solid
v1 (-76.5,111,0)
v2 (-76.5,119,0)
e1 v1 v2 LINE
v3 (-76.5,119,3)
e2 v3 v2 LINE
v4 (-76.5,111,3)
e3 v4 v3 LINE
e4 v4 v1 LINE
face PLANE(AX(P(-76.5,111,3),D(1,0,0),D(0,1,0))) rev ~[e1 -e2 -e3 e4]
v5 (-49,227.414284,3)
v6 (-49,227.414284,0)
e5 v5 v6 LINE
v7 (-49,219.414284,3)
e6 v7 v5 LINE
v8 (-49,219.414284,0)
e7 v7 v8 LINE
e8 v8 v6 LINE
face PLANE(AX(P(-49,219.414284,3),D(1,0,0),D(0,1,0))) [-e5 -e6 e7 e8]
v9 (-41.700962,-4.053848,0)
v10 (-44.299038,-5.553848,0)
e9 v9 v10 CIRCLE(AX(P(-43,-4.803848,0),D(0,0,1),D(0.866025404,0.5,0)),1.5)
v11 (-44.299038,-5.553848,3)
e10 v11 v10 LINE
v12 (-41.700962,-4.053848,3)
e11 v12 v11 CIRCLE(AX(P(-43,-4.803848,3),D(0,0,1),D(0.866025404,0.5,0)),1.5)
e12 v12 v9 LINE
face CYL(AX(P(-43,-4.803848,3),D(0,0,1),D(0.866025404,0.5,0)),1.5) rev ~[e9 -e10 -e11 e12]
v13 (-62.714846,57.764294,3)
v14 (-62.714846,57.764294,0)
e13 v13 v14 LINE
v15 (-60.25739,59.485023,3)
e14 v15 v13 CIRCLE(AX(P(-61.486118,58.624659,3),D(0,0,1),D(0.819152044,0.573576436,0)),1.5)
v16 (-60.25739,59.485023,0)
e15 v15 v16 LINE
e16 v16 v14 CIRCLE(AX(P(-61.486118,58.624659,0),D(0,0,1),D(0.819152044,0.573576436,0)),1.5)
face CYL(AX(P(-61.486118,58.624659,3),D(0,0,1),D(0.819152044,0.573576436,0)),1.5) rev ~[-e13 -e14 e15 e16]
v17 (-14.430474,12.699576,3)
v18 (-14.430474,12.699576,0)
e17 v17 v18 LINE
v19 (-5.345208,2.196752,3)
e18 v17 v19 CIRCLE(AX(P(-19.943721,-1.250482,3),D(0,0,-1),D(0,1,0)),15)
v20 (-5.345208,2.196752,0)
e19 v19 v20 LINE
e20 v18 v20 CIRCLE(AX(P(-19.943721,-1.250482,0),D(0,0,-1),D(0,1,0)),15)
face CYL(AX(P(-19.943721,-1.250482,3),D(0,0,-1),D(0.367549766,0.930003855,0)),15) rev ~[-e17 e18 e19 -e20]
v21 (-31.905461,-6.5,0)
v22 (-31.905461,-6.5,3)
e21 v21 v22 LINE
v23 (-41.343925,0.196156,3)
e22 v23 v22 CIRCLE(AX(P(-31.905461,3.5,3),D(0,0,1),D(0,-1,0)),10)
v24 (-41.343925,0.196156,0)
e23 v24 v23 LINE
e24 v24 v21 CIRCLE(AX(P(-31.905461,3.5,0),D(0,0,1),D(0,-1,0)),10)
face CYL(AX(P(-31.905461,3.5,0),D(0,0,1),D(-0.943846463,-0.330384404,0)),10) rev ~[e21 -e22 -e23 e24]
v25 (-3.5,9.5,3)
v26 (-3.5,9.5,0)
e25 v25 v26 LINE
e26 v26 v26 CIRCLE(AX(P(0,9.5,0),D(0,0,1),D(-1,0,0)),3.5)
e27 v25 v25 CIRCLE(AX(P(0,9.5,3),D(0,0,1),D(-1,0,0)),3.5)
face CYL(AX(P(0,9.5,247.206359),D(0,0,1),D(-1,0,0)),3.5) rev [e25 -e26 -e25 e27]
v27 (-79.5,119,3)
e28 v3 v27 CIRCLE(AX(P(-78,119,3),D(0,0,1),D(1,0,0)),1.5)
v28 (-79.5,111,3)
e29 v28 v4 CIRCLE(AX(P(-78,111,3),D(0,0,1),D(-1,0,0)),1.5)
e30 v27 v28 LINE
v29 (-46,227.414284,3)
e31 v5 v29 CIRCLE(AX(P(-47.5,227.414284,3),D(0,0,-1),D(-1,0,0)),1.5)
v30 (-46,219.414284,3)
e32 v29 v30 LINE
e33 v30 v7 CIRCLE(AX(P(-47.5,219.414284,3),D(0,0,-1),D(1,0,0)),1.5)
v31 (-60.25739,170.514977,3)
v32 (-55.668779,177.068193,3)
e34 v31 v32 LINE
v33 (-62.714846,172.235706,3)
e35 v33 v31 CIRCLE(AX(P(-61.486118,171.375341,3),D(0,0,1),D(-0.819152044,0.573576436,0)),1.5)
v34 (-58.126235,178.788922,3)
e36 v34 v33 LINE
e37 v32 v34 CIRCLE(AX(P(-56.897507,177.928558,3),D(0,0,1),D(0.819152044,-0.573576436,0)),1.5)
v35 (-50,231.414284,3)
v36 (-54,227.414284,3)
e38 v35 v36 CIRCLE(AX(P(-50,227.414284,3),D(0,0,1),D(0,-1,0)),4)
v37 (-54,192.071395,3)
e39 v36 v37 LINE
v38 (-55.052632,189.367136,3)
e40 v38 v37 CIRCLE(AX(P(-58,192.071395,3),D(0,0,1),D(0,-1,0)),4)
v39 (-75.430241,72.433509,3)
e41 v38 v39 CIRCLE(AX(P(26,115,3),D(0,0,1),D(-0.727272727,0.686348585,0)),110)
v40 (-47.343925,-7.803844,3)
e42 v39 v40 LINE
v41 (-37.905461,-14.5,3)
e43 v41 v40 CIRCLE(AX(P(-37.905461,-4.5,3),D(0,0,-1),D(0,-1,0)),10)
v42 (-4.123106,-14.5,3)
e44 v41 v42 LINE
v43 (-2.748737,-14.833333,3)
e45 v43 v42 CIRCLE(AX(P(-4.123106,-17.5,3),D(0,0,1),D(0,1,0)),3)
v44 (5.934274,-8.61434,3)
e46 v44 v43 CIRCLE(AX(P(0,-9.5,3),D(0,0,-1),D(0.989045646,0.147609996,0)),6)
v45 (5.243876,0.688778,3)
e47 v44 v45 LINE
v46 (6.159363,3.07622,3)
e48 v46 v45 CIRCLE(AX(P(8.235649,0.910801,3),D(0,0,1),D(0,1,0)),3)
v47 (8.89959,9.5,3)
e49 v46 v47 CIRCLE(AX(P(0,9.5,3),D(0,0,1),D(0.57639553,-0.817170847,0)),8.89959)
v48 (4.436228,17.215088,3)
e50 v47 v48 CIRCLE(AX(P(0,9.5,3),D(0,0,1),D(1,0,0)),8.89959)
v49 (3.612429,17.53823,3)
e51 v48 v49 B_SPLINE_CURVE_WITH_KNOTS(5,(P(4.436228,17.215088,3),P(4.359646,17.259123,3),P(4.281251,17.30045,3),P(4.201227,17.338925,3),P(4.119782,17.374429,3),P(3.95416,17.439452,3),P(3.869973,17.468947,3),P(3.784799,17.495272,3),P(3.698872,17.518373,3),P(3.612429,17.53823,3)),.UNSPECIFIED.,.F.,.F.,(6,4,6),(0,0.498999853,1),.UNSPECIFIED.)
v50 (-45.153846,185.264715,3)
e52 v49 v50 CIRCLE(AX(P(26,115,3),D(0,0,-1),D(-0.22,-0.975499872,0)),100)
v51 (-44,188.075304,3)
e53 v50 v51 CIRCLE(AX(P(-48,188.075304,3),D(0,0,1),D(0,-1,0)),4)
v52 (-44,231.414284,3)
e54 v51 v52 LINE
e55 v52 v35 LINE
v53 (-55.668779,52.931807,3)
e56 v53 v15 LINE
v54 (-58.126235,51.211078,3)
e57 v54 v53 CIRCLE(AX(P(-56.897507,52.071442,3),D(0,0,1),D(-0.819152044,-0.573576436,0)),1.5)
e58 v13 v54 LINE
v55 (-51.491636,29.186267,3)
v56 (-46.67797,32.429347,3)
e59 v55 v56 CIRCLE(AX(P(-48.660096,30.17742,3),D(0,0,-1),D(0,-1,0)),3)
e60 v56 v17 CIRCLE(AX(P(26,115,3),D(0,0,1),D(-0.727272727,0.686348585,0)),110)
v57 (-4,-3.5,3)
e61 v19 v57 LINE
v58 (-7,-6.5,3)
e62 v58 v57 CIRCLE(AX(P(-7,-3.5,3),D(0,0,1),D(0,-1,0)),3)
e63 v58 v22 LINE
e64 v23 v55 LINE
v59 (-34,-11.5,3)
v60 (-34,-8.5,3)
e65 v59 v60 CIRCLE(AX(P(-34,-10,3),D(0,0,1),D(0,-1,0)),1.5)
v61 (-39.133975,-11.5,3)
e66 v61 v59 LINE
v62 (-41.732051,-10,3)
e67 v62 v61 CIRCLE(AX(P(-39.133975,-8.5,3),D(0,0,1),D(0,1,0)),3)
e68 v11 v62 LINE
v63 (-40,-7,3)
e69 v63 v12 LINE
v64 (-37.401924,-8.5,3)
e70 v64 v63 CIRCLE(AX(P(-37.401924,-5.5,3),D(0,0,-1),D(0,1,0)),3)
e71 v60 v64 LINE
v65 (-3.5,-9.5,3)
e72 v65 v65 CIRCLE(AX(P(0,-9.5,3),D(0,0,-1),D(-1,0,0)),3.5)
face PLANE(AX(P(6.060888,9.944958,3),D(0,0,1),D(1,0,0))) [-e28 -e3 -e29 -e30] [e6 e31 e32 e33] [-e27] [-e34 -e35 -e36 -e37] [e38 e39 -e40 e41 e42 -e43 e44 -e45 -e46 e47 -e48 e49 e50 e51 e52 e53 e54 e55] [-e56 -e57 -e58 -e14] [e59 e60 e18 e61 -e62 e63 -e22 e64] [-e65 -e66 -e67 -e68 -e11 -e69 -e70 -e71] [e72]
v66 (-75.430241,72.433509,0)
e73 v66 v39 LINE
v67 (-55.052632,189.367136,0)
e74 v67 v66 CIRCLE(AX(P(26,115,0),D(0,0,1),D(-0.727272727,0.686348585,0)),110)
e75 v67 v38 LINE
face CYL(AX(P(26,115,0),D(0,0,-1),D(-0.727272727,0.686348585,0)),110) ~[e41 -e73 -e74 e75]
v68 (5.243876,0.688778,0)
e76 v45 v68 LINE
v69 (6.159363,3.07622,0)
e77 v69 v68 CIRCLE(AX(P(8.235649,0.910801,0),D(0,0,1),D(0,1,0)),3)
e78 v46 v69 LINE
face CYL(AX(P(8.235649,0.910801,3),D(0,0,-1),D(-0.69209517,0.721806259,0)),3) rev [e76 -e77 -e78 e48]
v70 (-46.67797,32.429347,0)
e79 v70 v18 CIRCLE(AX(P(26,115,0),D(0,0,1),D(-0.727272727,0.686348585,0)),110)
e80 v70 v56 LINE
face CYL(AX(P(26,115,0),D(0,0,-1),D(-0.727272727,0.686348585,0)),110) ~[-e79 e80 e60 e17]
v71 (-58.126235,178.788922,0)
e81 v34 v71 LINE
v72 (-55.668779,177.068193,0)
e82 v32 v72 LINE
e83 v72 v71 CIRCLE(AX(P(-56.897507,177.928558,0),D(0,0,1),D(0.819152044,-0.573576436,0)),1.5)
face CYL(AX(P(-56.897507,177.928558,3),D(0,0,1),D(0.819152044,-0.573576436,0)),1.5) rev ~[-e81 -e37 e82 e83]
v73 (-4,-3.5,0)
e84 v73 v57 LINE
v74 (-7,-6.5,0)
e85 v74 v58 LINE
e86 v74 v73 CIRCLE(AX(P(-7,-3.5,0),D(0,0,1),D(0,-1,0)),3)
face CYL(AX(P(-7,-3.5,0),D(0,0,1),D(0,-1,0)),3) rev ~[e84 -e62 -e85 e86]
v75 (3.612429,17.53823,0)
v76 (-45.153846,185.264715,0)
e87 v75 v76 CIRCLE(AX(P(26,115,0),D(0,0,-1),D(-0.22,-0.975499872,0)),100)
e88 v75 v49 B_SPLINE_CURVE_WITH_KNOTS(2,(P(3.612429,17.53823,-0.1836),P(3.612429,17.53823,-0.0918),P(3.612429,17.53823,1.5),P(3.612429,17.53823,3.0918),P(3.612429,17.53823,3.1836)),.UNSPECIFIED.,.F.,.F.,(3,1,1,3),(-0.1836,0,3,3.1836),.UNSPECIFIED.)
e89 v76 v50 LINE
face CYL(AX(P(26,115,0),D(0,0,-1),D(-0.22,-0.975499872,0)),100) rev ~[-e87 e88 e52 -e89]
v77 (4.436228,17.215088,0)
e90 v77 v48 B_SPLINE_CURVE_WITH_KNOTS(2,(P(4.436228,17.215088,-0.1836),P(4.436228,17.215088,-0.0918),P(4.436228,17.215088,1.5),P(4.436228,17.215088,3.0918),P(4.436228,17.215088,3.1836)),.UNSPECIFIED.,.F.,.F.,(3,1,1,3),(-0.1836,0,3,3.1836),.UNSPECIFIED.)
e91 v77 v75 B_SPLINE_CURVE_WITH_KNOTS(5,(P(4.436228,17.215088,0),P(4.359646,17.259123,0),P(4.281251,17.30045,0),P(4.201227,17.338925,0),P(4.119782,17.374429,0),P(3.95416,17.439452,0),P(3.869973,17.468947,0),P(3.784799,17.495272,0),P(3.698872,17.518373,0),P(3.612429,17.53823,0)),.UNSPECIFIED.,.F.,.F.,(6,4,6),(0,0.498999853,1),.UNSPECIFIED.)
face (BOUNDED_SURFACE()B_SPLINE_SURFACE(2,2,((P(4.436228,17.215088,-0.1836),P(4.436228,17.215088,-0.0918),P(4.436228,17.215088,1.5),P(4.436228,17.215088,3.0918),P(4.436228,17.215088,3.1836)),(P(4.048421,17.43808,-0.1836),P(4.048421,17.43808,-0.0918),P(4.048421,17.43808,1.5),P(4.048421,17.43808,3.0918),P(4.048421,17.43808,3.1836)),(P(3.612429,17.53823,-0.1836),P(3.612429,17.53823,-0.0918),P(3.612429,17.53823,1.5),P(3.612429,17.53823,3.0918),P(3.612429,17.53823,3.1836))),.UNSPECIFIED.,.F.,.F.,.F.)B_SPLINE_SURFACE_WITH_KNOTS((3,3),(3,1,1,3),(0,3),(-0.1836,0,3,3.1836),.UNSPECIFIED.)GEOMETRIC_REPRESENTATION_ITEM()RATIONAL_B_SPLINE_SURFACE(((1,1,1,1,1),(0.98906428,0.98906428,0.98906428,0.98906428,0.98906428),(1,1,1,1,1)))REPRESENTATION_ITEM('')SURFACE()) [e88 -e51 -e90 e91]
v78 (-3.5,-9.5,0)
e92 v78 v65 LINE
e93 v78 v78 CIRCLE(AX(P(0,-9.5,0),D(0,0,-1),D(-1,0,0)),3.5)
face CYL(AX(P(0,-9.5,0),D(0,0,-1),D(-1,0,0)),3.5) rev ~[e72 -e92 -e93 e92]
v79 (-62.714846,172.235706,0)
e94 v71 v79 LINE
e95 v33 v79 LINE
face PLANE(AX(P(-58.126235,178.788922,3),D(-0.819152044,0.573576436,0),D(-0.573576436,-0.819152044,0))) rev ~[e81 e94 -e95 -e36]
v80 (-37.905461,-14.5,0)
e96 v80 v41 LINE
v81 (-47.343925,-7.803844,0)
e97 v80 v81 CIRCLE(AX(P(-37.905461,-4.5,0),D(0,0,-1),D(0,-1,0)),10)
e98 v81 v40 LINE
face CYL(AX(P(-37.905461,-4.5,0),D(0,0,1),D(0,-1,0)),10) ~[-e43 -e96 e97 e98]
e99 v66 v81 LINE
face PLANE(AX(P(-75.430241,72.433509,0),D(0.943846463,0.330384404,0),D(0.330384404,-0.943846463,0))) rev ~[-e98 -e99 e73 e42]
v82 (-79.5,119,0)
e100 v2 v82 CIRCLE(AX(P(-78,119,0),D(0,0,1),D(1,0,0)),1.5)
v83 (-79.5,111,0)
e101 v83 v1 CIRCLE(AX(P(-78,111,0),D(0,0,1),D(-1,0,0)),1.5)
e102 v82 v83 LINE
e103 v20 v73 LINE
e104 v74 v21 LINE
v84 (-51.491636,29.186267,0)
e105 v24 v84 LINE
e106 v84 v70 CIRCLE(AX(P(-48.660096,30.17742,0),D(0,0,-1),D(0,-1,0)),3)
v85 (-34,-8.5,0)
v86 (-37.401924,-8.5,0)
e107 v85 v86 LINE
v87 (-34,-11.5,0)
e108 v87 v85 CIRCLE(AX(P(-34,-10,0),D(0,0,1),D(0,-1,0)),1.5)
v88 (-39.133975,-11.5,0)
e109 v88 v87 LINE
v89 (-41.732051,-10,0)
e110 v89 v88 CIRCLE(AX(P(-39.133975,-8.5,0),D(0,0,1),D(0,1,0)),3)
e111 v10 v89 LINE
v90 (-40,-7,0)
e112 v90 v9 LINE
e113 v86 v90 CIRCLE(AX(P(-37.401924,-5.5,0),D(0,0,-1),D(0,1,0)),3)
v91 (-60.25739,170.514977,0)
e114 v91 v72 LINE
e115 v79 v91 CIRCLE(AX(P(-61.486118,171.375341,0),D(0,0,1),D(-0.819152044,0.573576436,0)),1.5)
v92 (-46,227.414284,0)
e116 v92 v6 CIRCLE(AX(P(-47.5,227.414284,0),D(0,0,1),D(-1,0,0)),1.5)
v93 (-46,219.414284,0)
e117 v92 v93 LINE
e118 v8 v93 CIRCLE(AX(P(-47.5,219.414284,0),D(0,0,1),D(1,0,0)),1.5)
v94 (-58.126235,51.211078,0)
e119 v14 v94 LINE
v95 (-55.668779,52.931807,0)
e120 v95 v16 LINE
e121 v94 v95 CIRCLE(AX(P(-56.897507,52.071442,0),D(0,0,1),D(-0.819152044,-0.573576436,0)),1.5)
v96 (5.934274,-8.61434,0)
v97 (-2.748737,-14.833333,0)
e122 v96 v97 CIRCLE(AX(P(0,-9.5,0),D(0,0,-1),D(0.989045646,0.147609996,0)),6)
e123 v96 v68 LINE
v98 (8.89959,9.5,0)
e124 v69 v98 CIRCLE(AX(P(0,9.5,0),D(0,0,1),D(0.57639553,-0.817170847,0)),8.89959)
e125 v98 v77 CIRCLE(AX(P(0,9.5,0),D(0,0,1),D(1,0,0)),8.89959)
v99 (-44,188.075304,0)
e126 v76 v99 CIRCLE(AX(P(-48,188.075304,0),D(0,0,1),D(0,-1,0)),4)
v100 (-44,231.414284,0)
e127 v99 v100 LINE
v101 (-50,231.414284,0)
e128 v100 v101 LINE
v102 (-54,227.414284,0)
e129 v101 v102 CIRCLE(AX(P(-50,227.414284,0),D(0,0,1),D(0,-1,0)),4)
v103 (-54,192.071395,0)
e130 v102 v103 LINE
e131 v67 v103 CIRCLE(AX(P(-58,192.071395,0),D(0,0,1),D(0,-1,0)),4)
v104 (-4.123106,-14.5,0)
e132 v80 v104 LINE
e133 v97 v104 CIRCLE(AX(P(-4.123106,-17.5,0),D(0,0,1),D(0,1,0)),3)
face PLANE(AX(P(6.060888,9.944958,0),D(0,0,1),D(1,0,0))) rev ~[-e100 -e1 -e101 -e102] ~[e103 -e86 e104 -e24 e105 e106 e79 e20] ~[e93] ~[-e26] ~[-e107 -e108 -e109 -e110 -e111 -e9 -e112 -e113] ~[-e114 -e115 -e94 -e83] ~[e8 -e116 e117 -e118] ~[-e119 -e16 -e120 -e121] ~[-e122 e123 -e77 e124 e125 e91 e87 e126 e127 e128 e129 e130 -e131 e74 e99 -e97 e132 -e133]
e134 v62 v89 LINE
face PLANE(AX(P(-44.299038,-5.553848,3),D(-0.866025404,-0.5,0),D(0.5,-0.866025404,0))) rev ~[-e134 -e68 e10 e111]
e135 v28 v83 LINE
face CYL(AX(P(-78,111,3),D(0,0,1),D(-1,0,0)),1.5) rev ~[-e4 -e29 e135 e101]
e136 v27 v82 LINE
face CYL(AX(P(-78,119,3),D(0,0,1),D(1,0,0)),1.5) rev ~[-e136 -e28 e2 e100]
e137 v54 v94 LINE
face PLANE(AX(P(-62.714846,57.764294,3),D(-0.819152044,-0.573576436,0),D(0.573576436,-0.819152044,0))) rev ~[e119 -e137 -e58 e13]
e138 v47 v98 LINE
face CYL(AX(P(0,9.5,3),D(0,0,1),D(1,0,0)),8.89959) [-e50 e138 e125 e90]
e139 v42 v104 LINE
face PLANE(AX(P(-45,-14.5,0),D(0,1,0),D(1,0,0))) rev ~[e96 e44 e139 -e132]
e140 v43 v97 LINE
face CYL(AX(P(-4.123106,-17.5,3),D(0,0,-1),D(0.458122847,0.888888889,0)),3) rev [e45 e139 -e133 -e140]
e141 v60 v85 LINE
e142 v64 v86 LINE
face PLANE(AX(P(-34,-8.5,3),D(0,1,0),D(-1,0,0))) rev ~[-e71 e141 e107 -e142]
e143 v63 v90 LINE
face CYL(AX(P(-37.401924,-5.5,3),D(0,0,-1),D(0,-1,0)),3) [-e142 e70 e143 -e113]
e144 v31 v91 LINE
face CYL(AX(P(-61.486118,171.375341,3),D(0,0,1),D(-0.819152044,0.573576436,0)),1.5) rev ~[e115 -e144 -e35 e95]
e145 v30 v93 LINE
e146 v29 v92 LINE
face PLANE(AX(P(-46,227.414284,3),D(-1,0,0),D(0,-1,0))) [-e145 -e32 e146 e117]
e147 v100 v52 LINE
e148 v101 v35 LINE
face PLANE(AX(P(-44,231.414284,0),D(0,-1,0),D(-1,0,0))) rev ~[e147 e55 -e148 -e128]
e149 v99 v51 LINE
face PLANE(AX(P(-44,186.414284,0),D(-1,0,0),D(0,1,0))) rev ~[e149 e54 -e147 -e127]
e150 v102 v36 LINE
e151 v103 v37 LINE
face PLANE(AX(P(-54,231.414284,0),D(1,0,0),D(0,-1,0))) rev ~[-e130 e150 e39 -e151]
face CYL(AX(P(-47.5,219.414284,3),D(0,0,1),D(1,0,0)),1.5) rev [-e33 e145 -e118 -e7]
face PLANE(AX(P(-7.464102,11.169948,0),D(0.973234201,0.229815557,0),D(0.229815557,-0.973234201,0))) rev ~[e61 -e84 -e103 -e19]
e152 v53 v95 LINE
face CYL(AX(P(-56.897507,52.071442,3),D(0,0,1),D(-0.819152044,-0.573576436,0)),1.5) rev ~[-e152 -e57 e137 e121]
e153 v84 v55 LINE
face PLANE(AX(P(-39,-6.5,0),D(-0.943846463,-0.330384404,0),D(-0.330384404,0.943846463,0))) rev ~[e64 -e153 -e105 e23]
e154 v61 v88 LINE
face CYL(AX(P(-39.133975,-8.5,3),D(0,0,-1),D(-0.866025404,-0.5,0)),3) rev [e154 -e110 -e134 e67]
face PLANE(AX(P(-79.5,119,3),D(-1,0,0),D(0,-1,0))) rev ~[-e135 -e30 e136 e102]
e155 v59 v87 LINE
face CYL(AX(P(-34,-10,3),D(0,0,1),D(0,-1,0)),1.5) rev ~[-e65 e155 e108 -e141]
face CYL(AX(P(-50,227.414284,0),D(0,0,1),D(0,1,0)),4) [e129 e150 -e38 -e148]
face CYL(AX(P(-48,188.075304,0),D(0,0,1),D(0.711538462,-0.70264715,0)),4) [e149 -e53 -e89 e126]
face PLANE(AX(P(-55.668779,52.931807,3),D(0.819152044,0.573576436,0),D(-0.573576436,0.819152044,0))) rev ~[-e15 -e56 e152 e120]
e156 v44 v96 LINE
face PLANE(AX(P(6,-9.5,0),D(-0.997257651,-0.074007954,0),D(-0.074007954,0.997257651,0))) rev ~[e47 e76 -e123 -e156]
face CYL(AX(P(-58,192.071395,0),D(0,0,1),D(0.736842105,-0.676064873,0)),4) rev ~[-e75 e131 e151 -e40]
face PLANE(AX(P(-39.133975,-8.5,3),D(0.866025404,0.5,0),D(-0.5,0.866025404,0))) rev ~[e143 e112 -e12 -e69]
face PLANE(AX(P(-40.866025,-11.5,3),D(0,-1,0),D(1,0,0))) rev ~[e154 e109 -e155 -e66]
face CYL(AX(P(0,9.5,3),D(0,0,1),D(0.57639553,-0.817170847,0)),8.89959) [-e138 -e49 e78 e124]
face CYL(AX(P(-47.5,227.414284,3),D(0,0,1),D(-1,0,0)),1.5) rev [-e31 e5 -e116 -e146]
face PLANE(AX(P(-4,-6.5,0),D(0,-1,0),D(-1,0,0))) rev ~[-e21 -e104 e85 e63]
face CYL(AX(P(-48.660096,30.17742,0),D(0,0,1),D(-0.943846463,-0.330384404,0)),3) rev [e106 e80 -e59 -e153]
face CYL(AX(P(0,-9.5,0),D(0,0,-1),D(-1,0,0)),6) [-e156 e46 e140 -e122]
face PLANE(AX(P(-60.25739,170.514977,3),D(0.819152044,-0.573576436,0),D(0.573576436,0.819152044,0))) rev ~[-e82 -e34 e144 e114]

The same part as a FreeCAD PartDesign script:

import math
import FreeCAD as App
import Part
import Sketcher

V = App.Vector
Q = App.Units.Quantity


def edges_at(feature, points):
    """Names of the edges that pass closest to the given points."""
    edges = feature.Shape.Edges
    near = lambda p: min(range(len(edges)), key=lambda i: edges[i].distToShape(Part.Vertex(*p))[0])
    return sorted({f"Edge{near(p) + 1}" for p in points})


def add_polygon(sketch, points):
    """Adds a closed chain of lines whose ends are joined by coincident constraints."""
    first, n = sketch.GeometryCount, len(points)
    for a, b in zip(points, points[1:] + points[:1]):
        sketch.addGeometry(Part.LineSegment(App.Vector(*a, 0), App.Vector(*b, 0)), False)
    for i in range(n):
        sketch.addConstraint(Sketcher.Constraint("Coincident", first + i, 2, first + (i + 1) % n, 1))

doc = App.newDocument("Part")
body = doc.addObject("PartDesign::Body", "Body")

# Sketch on XY plane
sketch1 = body.newObject("Sketcher::SketchObject", "Sketch")
sketch1.AttachmentSupport = (doc.getObject("XY_Plane"), [""])
sketch1.MapMode = "FlatFace"
sketch1.addGeometry(Part.LineSegment(V(4, -6.5, 0), V(4, 17.5, 0)), False)
sketch1.addGeometry(Part.ArcOfCircle(Part.Circle(V(26, 115, 0), V(0, 0, 1), 100), math.radians(134), math.radians(257)), False)
sketch1.addGeometry(Part.LineSegment(V(-44, 186.4, 0), V(-44, 231.4, 0)), False)
sketch1.addGeometry(Part.LineSegment(V(-44, 231.4, 0), V(-54, 231.4, 0)), False)
sketch1.addGeometry(Part.LineSegment(V(-54, 231.4, 0), V(-54, 190.5, 0)), False)
sketch1.addGeometry(Part.ArcOfCircle(Part.Circle(V(26, 115, 0), V(0, 0, 1), 110), math.radians(137), math.radians(254)), False)
sketch1.addGeometry(Part.LineSegment(V(-4, 9.2, 0), V(-4, -6.5, 0)), False)
sketch1.addGeometry(Part.ArcOfCircle(Part.Circle(V(0, -9.5, 0), V(0, 0, 1), 5), math.radians(143), math.radians(397)), False)
sketch1.addGeometry(Part.LineSegment(V(1.5, -9.5, 0), V(-1.5, -9.5, 0)), False)
sketch1.addGeometry(Part.ArcOfCircle(Part.Circle(V(0, -9.5, 0), V(0, 0, 1), 1.5), math.radians(0), math.radians(180)), False)
sketch1.addGeometry(Part.Circle(V(0, 9.5, 0), V(0, 0, 1), 1.5), False)
sketch1.addConstraint(Sketcher.Constraint("Coincident", 0, 2, 1, 2))
sketch1.addConstraint(Sketcher.Constraint("Coincident", 1, 1, 2, 1))
sketch1.addConstraint(Sketcher.Constraint("Coincident", 2, 2, 3, 1))
sketch1.addConstraint(Sketcher.Constraint("Coincident", 3, 2, 4, 1))
sketch1.addConstraint(Sketcher.Constraint("Coincident", 4, 2, 5, 1))
sketch1.addConstraint(Sketcher.Constraint("Coincident", 5, 2, 6, 1))
sketch1.addConstraint(Sketcher.Constraint("Coincident", 6, 2, 7, 1))
sketch1.addConstraint(Sketcher.Constraint("Coincident", 7, 2, 0, 1))
sketch1.addConstraint(Sketcher.Constraint("Coincident", 8, 1, 9, 1))
sketch1.addConstraint(Sketcher.Constraint("Coincident", 9, 2, 8, 2))
sketch1.addConstraint(Sketcher.Constraint("Vertical", 0))
sketch1.addConstraint(Sketcher.Constraint("Vertical", 2))
sketch1.addConstraint(Sketcher.Constraint("Horizontal", 3))
sketch1.addConstraint(Sketcher.Constraint("Vertical", 4))
sketch1.addConstraint(Sketcher.Constraint("Vertical", 6))
sketch1.addConstraint(Sketcher.Constraint("Horizontal", 8))
sketch1.addConstraint(Sketcher.Constraint("Coincident", 5, 3, 1, 3))
sketch1.addConstraint(Sketcher.Constraint("Coincident", 9, 3, 7, 3))
sketch1.addConstraint(Sketcher.Constraint("Equal", 9, 10))
sketch1.addConstraint(Sketcher.Constraint("Symmetric", 7, 3, 10, 3, -1, 1))
sketch1.addConstraint(Sketcher.Constraint("Symmetric", 6, 2, 7, 2, -2))
sketch1.addConstraint(Sketcher.Constraint("Horizontal", 9, 3, 8, 1))
sketch1.addConstraint(Sketcher.Constraint("Diameter", 10, 3.0))
sketch1.addConstraint(Sketcher.Constraint("Radius", 1, 100.0))
sketch1.addConstraint(Sketcher.Constraint("Radius", 5, 110.0))
sketch1.addConstraint(Sketcher.Constraint("Radius", 7, 5.0))
sketch1.addConstraint(Sketcher.Constraint("DistanceX", 3, 2, 3, 1, 10.0))
sketch1.addConstraint(Sketcher.Constraint("DistanceY", 2, 1, 2, 2, 45.0))
sketch1.addConstraint(Sketcher.Constraint("DistanceX", -1, 1, 1, 3, 26.0))
sketch1.addConstraint(Sketcher.Constraint("DistanceY", -1, 1, 1, 3, 115.0))
sketch1.addConstraint(Sketcher.Constraint("DistanceX", -1, 1, 0, 2, 4.0))
sketch1.addConstraint(Sketcher.Constraint("DistanceX", 1, 1, -1, 1, 44.0))
sketch1.addConstraint(Sketcher.Constraint("DistanceY", 7, 3, 10, 3, 19.0))
pad1 = body.newObject("PartDesign::Pad", "Pad")
pad1.Profile = sketch1
pad1.Length = 3
doc.recompute()

fillet = body.newObject("PartDesign::Fillet", "Fillet")
fillet.Base = (pad1, edges_at(pad1, [(-54, 190.498, 1.5), (-54, 231.414, 1.5), (-44, 186.414, 1.5)]))
fillet.Radius = 4

# Sketch on XY plane
sketch2 = body.newObject("Sketcher::SketchObject", "Sketch001")
sketch2.AttachmentSupport = (doc.getObject("XY_Plane"), [""])
sketch2.MapMode = "FlatFace"
sketch2.addGeometry(Part.LineSegment(V(-45, -14, 0), V(0, -14, 0)), False)
sketch2.addGeometry(Part.ArcOfCircle(Part.Circle(V(0, -10, 0), V(0, 0, 1), 5), math.radians(143), math.radians(270)), False)
sketch2.addGeometry(Part.LineSegment(V(-4, -6, 0), V(-39, -6, 0)), False)
sketch2.addGeometry(Part.LineSegment(V(-39, -6, 0), V(-56, 41, 0)), False)
sketch2.addGeometry(Part.ArcOfCircle(Part.Circle(V(26, 115, 0), V(0, 0, 1), 110), math.radians(-157.23), math.radians(-138.02)), False)
sketch2.addGeometry(Part.LineSegment(V(-75, 72, 0), V(-45, -14, 0)), False)
sketch2.addConstraint(Sketcher.Constraint("Tangent", 0, 2, 1, 2))
sketch2.addConstraint(Sketcher.Constraint("Coincident", 1, 1, 2, 1))
sketch2.addConstraint(Sketcher.Constraint("Coincident", 2, 2, 3, 1))
sketch2.addConstraint(Sketcher.Constraint("Coincident", 3, 2, 4, 2))
sketch2.addConstraint(Sketcher.Constraint("Coincident", 4, 1, 5, 1))
sketch2.addConstraint(Sketcher.Constraint("Coincident", 5, 2, 0, 1))
sketch2.addConstraint(Sketcher.Constraint("Horizontal", 0))
sketch2.addConstraint(Sketcher.Constraint("Horizontal", 2))
sketch2.addConstraint(Sketcher.Constraint("PointOnObject", 1, 3, -2))
sketch2.addConstraint(Sketcher.Constraint("Parallel", 3, 5))
sketch2.addConstraint(Sketcher.Constraint("Radius", 1, 5.0))
sketch2.addConstraint(Sketcher.Constraint("Radius", 4, 110.0))
sketch2.addConstraint(Sketcher.Constraint("DistanceX", 0, 1, 0, 2, 45.0))
sketch2.addConstraint(Sketcher.Constraint("DistanceX", 2, 2, 2, 1, 35.0))
sketch2.addConstraint(Sketcher.Constraint("DistanceX", -1, 1, 4, 3, 26.0))
sketch2.addConstraint(Sketcher.Constraint("DistanceY", -1, 1, 4, 3, 115.0))
sketch2.addConstraint(Sketcher.Constraint("DistanceX", 1, 1, -1, 1, 4.0))
sketch2.addConstraint(Sketcher.Constraint("DistanceY", 1, 3, -1, 1, 9.5))
sketch2.addConstraint(Sketcher.Constraint("Distance", 5, 92.105562))
pad2 = body.newObject("PartDesign::Pad", "Pad001")
pad2.Profile = sketch2
pad2.Length = 3
doc.recompute()

fillet2 = body.newObject("PartDesign::Fillet", "Fillet001")
fillet2.Base = (pad2, edges_at(pad2, [(-55.778, 41.431, 1.5)]))
fillet2.Radius = 3
doc.recompute()

fillet3 = body.newObject("PartDesign::Fillet", "Fillet002")
fillet3.Base = (fillet2, edges_at(fillet2, [(-39, -6.5, 1.5), (-45, -14.5, 1.5)]))
fillet3.Radius = 10

# Sketch on XY plane
sketch3 = body.newObject("Sketcher::SketchObject", "Sketch002")
sketch3.AttachmentSupport = (doc.getObject("XY_Plane"), [""])
sketch3.MapMode = "FlatFace"
sketch3.AttachmentOffset = App.Placement(V(0, 0, 3), App.Rotation())
sketch3.addGeometry(Part.Circle(V(0, -9.5, 0), V(0, 0, 1), 1.5), False)
sketch3.addConstraint(Sketcher.Constraint("PointOnObject", 0, 3, -2))
sketch3.addConstraint(Sketcher.Constraint("Diameter", 0, 3.0))
sketch3.addConstraint(Sketcher.Constraint("DistanceY", 0, 3, -1, 1, 9.5))
pocket1 = body.newObject("PartDesign::Pocket", "Pocket")
pocket1.Profile = sketch3
pocket1.Type = "ThroughAll"
doc.recompute()

fillet4 = body.newObject("PartDesign::Fillet", "Fillet003")
fillet4.Base = (pocket1, edges_at(pocket1, [(4, -6.5, 1.5), (-4, -6.5, 1.5)]))
fillet4.Radius = 3

# Sketch on XY plane
sketch4 = body.newObject("Sketcher::SketchObject", "Sketch003")
sketch4.AttachmentSupport = (doc.getObject("XY_Plane"), [""])
sketch4.MapMode = "FlatFace"
sketch4.AttachmentOffset = App.Placement(V(0, 0, 3), App.Rotation())
sketch4.addGeometry(Part.LineSegment(V(-34, -8.5, 0), V(-39.1, -8.5, 0)), False)
sketch4.addGeometry(Part.LineSegment(V(-39.1, -8.5, 0), V(-41.7, -4.1, 0)), False)
sketch4.addGeometry(Part.ArcOfCircle(Part.Circle(V(-43, -4.8, 0), V(0, 0, 1), 1.5), math.radians(30), math.radians(210)), False)
sketch4.addGeometry(Part.LineSegment(V(-44.3, -5.6, 0), V(-40.9, -11.5, 0)), False)
sketch4.addGeometry(Part.LineSegment(V(-40.9, -11.5, 0), V(-34, -11.5, 0)), False)
sketch4.addGeometry(Part.ArcOfCircle(Part.Circle(V(-34, -10, 0), V(0, 0, 1), 1.5), math.radians(-90), math.radians(90)), False)
sketch4.addConstraint(Sketcher.Constraint("Coincident", 0, 2, 1, 1))
sketch4.addConstraint(Sketcher.Constraint("Tangent", 1, 2, 2, 1))
sketch4.addConstraint(Sketcher.Constraint("Tangent", 2, 2, 3, 1))
sketch4.addConstraint(Sketcher.Constraint("Coincident", 3, 2, 4, 1))
sketch4.addConstraint(Sketcher.Constraint("Tangent", 4, 2, 5, 1))
sketch4.addConstraint(Sketcher.Constraint("Tangent", 5, 2, 0, 1))
sketch4.addConstraint(Sketcher.Constraint("Horizontal", 0))
sketch4.addConstraint(Sketcher.Constraint("Horizontal", 4))
sketch4.addConstraint(Sketcher.Constraint("Equal", 2, 5))
sketch4.addConstraint(Sketcher.Constraint("Parallel", 1, 3))
sketch4.addConstraint(Sketcher.Constraint("Radius", 2, 1.5))
sketch4.addConstraint(Sketcher.Constraint("Angle", 1, Q("120 deg")))
sketch4.addConstraint(Sketcher.Constraint("DistanceX", 2, 3, -1, 1, 43.0))
sketch4.addConstraint(Sketcher.Constraint("DistanceX", 5, 3, -1, 1, 34.0))
sketch4.addConstraint(Sketcher.Constraint("DistanceY", 5, 3, -1, 1, 10.0))
sketch4.addConstraint(Sketcher.Constraint("DistanceX", 0, 2, 0, 1, 5.133975))
pocket2 = body.newObject("PartDesign::Pocket", "Pocket001")
pocket2.Profile = sketch4
pocket2.Length = 9.5
doc.recompute()

fillet5 = body.newObject("PartDesign::Fillet", "Fillet004")
fillet5.Base = (pocket2, edges_at(pocket2, [(-40.866, -11.5, 1.5), (-39.134, -8.5, 1.5)]))
fillet5.Radius = 3

# Sketch on XY plane
sketch5 = body.newObject("Sketcher::SketchObject", "Sketch004")
sketch5.AttachmentSupport = (doc.getObject("XY_Plane"), [""])
sketch5.MapMode = "FlatFace"
sketch5.AttachmentOffset = App.Placement(V(0, 0, 3), App.Rotation())
sketch5.addGeometry(Part.LineSegment(V(-58.1, 178.8, 0), V(-62.7, 172.2, 0)), False)
sketch5.addGeometry(Part.ArcOfCircle(Part.Circle(V(-61.5, 171.4, 0), V(0, 0, 1), 1.5), math.radians(145), math.radians(325)), False)
sketch5.addGeometry(Part.LineSegment(V(-60.3, 170.5, 0), V(-55.7, 177.1, 0)), False)
sketch5.addGeometry(Part.ArcOfCircle(Part.Circle(V(-56.9, 177.9, 0), V(0, 0, 1), 1.5), math.radians(-35), math.radians(145)), False)
sketch5.addGeometry(Part.LineSegment(V(-79.5, 119, 0), V(-79.5, 111, 0)), False)
sketch5.addGeometry(Part.ArcOfCircle(Part.Circle(V(-78, 111, 0), V(0, 0, 1), 1.5), math.radians(180), math.radians(360)), False)
sketch5.addGeometry(Part.LineSegment(V(-76.5, 111, 0), V(-76.5, 119, 0)), False)
sketch5.addGeometry(Part.ArcOfCircle(Part.Circle(V(-78, 119, 0), V(0, 0, 1), 1.5), math.radians(0), math.radians(180)), False)
sketch5.addGeometry(Part.LineSegment(V(-62.7, 57.8, 0), V(-58.1, 51.2, 0)), False)
sketch5.addGeometry(Part.ArcOfCircle(Part.Circle(V(-56.9, 52.1, 0), V(0, 0, 1), 1.5), math.radians(-145), math.radians(35)), False)
sketch5.addGeometry(Part.LineSegment(V(-55.7, 52.9, 0), V(-60.3, 59.5, 0)), False)
sketch5.addGeometry(Part.ArcOfCircle(Part.Circle(V(-61.5, 58.6, 0), V(0, 0, 1), 1.5), math.radians(35), math.radians(215)), False)
sketch5.addConstraint(Sketcher.Constraint("Tangent", 0, 2, 1, 1))
sketch5.addConstraint(Sketcher.Constraint("Tangent", 1, 2, 2, 1))
sketch5.addConstraint(Sketcher.Constraint("Tangent", 2, 2, 3, 1))
sketch5.addConstraint(Sketcher.Constraint("Tangent", 3, 2, 0, 1))
sketch5.addConstraint(Sketcher.Constraint("Tangent", 4, 2, 5, 1))
sketch5.addConstraint(Sketcher.Constraint("Tangent", 5, 2, 6, 1))
sketch5.addConstraint(Sketcher.Constraint("Tangent", 6, 2, 7, 1))
sketch5.addConstraint(Sketcher.Constraint("Tangent", 7, 2, 4, 1))
sketch5.addConstraint(Sketcher.Constraint("Tangent", 8, 2, 9, 1))
sketch5.addConstraint(Sketcher.Constraint("Tangent", 9, 2, 10, 1))
sketch5.addConstraint(Sketcher.Constraint("Tangent", 10, 2, 11, 1))
sketch5.addConstraint(Sketcher.Constraint("Tangent", 11, 2, 8, 1))
sketch5.addConstraint(Sketcher.Constraint("Vertical", 4))
sketch5.addConstraint(Sketcher.Constraint("Vertical", 6))
sketch5.addConstraint(Sketcher.Constraint("Equal", 1, 3))
sketch5.addConstraint(Sketcher.Constraint("Equal", 3, 5))
sketch5.addConstraint(Sketcher.Constraint("Equal", 7, 9))
sketch5.addConstraint(Sketcher.Constraint("Equal", 9, 11))
sketch5.addConstraint(Sketcher.Constraint("Vertical", 3, 3, 9, 3))
sketch5.addConstraint(Sketcher.Constraint("Vertical", 1, 3, 11, 3))
sketch5.addConstraint(Sketcher.Constraint("Vertical", 3, 2, 8, 2))
sketch5.addConstraint(Sketcher.Constraint("Radius", 1, 1.5))
sketch5.addConstraint(Sketcher.Constraint("DistanceY", 4, 2, 4, 1, 8.0))
sketch5.addConstraint(Sketcher.Constraint("Angle", 0, Q("-125 deg")))
sketch5.addConstraint(Sketcher.Constraint("Distance", 0, 8.0))
sketch5.addConstraint(Sketcher.Constraint("DistanceX", 5, 3, -1, 1, 78.0))
sketch5.addConstraint(Sketcher.Constraint("DistanceY", -1, 1, 5, 3, 111.0))
sketch5.addConstraint(Sketcher.Constraint("DistanceY", 9, 3, 1, 3, 119.303899))
sketch5.addConstraint(Sketcher.Constraint("DistanceX", 1, 3, -1, 1, 61.486118))
sketch5.addConstraint(Sketcher.Constraint("DistanceY", -1, 1, 1, 3, 171.375341))
pocket3 = body.newObject("PartDesign::Pocket", "Pocket002")
pocket3.Profile = sketch5
pocket3.Length = 9.5

# Sketch on XY plane
sketch6 = body.newObject("Sketcher::SketchObject", "Sketch005")
sketch6.AttachmentSupport = (doc.getObject("XY_Plane"), [""])
sketch6.MapMode = "FlatFace"
sketch6.AttachmentOffset = App.Placement(V(0, 0, 3), App.Rotation())
sketch6.addGeometry(Part.LineSegment(V(-49, 227.4, 0), V(-49, 219.4, 0)), False)
sketch6.addGeometry(Part.ArcOfCircle(Part.Circle(V(-47.5, 219.4, 0), V(0, 0, 1), 1.5), math.radians(180), math.radians(360)), False)
sketch6.addGeometry(Part.LineSegment(V(-46, 219.4, 0), V(-46, 227.4, 0)), False)
sketch6.addGeometry(Part.ArcOfCircle(Part.Circle(V(-47.5, 227.4, 0), V(0, 0, 1), 1.5), math.radians(0), math.radians(180)), False)
sketch6.addConstraint(Sketcher.Constraint("Tangent", 0, 2, 1, 1))
sketch6.addConstraint(Sketcher.Constraint("Tangent", 1, 2, 2, 1))
sketch6.addConstraint(Sketcher.Constraint("Tangent", 2, 2, 3, 1))
sketch6.addConstraint(Sketcher.Constraint("Tangent", 3, 2, 0, 1))
sketch6.addConstraint(Sketcher.Constraint("Vertical", 0))
sketch6.addConstraint(Sketcher.Constraint("Vertical", 2))
sketch6.addConstraint(Sketcher.Constraint("Radius", 1, 1.5))
sketch6.addConstraint(Sketcher.Constraint("DistanceY", 0, 2, 0, 1, 8.0))
sketch6.addConstraint(Sketcher.Constraint("DistanceX", 0, 2, -1, 1, 49.0))
sketch6.addConstraint(Sketcher.Constraint("DistanceY", -1, 1, 1, 3, 219.414284))
pocket4 = body.newObject("PartDesign::Pocket", "Pocket003")
pocket4.Profile = sketch6
pocket4.Type = "ThroughAll"

# Sketch on XY plane
sketch7 = body.newObject("Sketcher::SketchObject", "Sketch006")
sketch7.AttachmentSupport = (doc.getObject("XY_Plane"), [""])
sketch7.MapMode = "FlatFace"
sketch7.addGeometry(Part.Circle(V(0, -9.5, 0), V(0, 0, 1), 3.5), False)
sketch7.addGeometry(Part.Circle(V(0, -9.5, 0), V(0, 0, 1), 1.5), False)
sketch7.addConstraint(Sketcher.Constraint("Coincident", 1, 3, 0, 3))
sketch7.addConstraint(Sketcher.Constraint("PointOnObject", 0, 3, -2))
sketch7.addConstraint(Sketcher.Constraint("Diameter", 0, 7.0))
sketch7.addConstraint(Sketcher.Constraint("Diameter", 1, 3.0))
sketch7.addConstraint(Sketcher.Constraint("DistanceY", 0, 3, -1, 1, 9.5))
pocket5 = body.newObject("PartDesign::Pocket", "Pocket004")
pocket5.Profile = sketch7
pocket5.Length = 55
pocket5.Reversed = True

# Sketch on XY plane
sketch8 = body.newObject("Sketcher::SketchObject", "Sketch007")
sketch8.AttachmentSupport = (doc.getObject("XY_Plane"), [""])
sketch8.MapMode = "FlatFace"
sketch8.addGeometry(Part.Circle(V(0, -9.5, 0), V(0, 0, 1), 6), False)
sketch8.addGeometry(Part.Circle(V(0, -9.5, 0), V(0, 0, 1), 3.5), False)
sketch8.addConstraint(Sketcher.Constraint("Coincident", 1, 3, 0, 3))
sketch8.addConstraint(Sketcher.Constraint("PointOnObject", 0, 3, -2))
sketch8.addConstraint(Sketcher.Constraint("Diameter", 0, 12.0))
sketch8.addConstraint(Sketcher.Constraint("Diameter", 1, 7.0))
sketch8.addConstraint(Sketcher.Constraint("DistanceY", 0, 3, -1, 1, 9.5))
pad3 = body.newObject("PartDesign::Pad", "Pad002")
pad3.Profile = sketch8
pad3.Length = 3

# Sketch on XY plane
sketch9 = body.newObject("Sketcher::SketchObject", "Sketch008")
sketch9.AttachmentSupport = (doc.getObject("XY_Plane"), [""])
sketch9.MapMode = "FlatFace"
add_polygon(sketch9, [(4, -5), (4, 17.5), (6, -9.5)])  # lines 0-2
add_polygon(sketch9, [(-4, 9.2), (-4, -3.5), (-7.5, 11.2)])  # lines 3-5
sketch9.addConstraint(Sketcher.Constraint("Vertical", 0))
sketch9.addConstraint(Sketcher.Constraint("Vertical", 3))
sketch9.addConstraint(Sketcher.Constraint("Angle", 5, Q("-30 deg")))
sketch9.addConstraint(Sketcher.Constraint("Distance", 5, 4.0))
sketch9.addConstraint(Sketcher.Constraint("DistanceX", -1, 1, 0, 2, 4.0))
sketch9.addConstraint(Sketcher.Constraint("DistanceX", -1, 1, 1, 2, 6.0))
sketch9.addConstraint(Sketcher.Constraint("DistanceX", 3, 2, -1, 1, 4.0))
sketch9.addConstraint(Sketcher.Constraint("DistanceY", 1, 2, 3, 2, 6.0))
sketch9.addConstraint(Sketcher.Constraint("DistanceY", 1, 2, -1, 1, 9.5))
sketch9.addConstraint(Sketcher.Constraint("Distance", 4, 15.073399))
sketch9.addConstraint(Sketcher.Constraint("Distance", 2, 4.898979))
sketch9.addConstraint(Sketcher.Constraint("DistanceY", 0, 1, 0, 2, 22.477877))
pad4 = body.newObject("PartDesign::Pad", "Pad003")
pad4.Profile = sketch9
pad4.Length = 3

# Sketch on XY plane
sketch10 = body.newObject("Sketcher::SketchObject", "Sketch009")
sketch10.AttachmentSupport = (doc.getObject("XY_Plane"), [""])
sketch10.MapMode = "FlatFace"
sketch10.addGeometry(Part.Circle(V(0, 9.5, 0), V(0, 0, 1), 3.5), False)
sketch10.addConstraint(Sketcher.Constraint("PointOnObject", 0, 3, -2))
sketch10.addConstraint(Sketcher.Constraint("Diameter", 0, 7.0))
sketch10.addConstraint(Sketcher.Constraint("DistanceY", -1, 1, 0, 3, 9.5))
pocket6 = body.newObject("PartDesign::Pocket", "Pocket005")
pocket6.Profile = sketch10
pocket6.Type = "ThroughAll"
pocket6.Midplane = True
doc.recompute()

fillet6 = body.newObject("PartDesign::Fillet", "Fillet005")
fillet6.Base = (pocket6, edges_at(pocket6, [(-3.317, -14.5, 1.5)]))
fillet6.Radius = 3

# Sketch on XY plane
sketch11 = body.newObject("Sketcher::SketchObject", "Sketch010")
sketch11.AttachmentSupport = (doc.getObject("XY_Plane"), [""])
sketch11.MapMode = "FlatFace"
sketch11.AttachmentOffset = App.Placement(V(0, 0, 3), App.Rotation())
sketch11.addGeometry(Part.ArcOfCircle(Part.Circle(V(0, 10, 0), V(0, 0, 1), 9), math.radians(0), math.radians(63)), False)
sketch11.addGeometry(Part.LineSegment(V(4, 17, 0), V(5, 2, 0)), False)
sketch11.addGeometry(Part.ArcOfCircle(Part.Circle(V(0, 10, 0), V(0, 0, 1), 9), math.radians(-55), math.radians(0)), False)
sketch11.addConstraint(Sketcher.Constraint("Coincident", 0, 2, 1, 1))
sketch11.addConstraint(Sketcher.Constraint("Coincident", 1, 2, 2, 1))
sketch11.addConstraint(Sketcher.Constraint("Tangent", 2, 2, 0, 1))
sketch11.addConstraint(Sketcher.Constraint("Equal", 0, 2))
sketch11.addConstraint(Sketcher.Constraint("PointOnObject", 0, 3, -2))
sketch11.addConstraint(Sketcher.Constraint("Horizontal", 0, 3, 2, 2))
sketch11.addConstraint(Sketcher.Constraint("DistanceX", -1, 1, 0, 2, 4.0))
sketch11.addConstraint(Sketcher.Constraint("DistanceY", -1, 1, 0, 3, 9.5))
sketch11.addConstraint(Sketcher.Constraint("Radius", 0, 8.89959))
sketch11.addConstraint(Sketcher.Constraint("DistanceY", 1, 2, 0, 2, 15.222498))
pad5 = body.newObject("PartDesign::Pad", "Pad004")
pad5.Profile = sketch11
pad5.Length = 3
pad5.Reversed = True
doc.recompute()

fillet7 = body.newObject("PartDesign::Fillet", "Fillet006")
fillet7.Base = (pad5, edges_at(pad5, [(4, 17.45, 1.5), (5.13, 2.228, 1.5)]))
fillet7.Radius = 3
doc.recompute()

fillet8 = body.newObject("PartDesign::Fillet", "Fillet007")
fillet8.Base = (fillet7, edges_at(fillet7, [(-7.22, 10.136, 1.5)]))
fillet8.Radius = 15

doc.recompute()
